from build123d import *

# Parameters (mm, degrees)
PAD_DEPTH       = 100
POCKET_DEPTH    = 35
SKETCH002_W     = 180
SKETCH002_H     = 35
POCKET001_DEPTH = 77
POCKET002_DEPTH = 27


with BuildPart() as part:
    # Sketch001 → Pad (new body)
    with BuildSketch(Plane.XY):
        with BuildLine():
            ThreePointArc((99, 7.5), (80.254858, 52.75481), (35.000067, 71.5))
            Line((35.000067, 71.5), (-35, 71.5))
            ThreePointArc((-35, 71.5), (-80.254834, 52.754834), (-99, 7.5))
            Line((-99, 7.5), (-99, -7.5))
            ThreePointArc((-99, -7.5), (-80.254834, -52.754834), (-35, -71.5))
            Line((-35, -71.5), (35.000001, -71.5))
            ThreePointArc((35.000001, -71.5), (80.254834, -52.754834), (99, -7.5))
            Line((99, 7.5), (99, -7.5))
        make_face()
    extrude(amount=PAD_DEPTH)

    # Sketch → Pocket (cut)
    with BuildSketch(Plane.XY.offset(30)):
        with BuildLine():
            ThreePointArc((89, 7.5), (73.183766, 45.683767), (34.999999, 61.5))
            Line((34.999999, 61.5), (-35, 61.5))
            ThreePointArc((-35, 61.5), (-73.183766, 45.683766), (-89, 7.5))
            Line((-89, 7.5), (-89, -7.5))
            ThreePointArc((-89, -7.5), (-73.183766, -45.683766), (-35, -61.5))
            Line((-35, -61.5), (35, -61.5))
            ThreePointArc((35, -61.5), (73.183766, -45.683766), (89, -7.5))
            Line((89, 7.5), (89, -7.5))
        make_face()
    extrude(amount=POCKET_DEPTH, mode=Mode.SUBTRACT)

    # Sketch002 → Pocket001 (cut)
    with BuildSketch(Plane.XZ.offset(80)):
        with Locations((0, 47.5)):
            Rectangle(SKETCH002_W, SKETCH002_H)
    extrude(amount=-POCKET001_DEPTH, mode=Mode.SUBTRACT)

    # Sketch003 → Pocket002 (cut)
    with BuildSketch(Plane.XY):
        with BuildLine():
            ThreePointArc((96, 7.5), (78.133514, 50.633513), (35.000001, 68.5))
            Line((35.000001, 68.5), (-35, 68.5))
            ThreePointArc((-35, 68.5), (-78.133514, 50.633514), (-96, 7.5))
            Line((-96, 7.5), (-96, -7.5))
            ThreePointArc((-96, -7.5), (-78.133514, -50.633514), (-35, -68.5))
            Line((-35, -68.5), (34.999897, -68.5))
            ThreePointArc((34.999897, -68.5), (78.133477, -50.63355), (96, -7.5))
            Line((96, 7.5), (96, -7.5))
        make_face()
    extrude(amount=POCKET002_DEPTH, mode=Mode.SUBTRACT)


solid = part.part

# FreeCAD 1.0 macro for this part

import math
import FreeCAD as App
import Part
import Sketcher
from FreeCAD import Vector


def add_polygon(sketch, points):
    """Adds a closed chain of lines whose ends are joined by coincident constraints."""
    first, n = sketch.GeometryCount, len(points)
    for a, b in zip(points, points[1:] + points[:1]):
        sketch.addGeometry(Part.LineSegment(App.Vector(*a, 0), App.Vector(*b, 0)), False)
    for i in range(n):
        sketch.addConstraint(Sketcher.Constraint("Coincident", first + i, 2, first + (i + 1) % n, 1))

doc = App.newDocument("Part")
body = doc.addObject("PartDesign::Body", "Body")

# Sketch on XY plane
sketch1 = body.newObject("Sketcher::SketchObject", "Sketch")
sketch1.AttachmentSupport = (doc.getObject("XY_Plane"), [""])
sketch1.MapMode = "FlatFace"
sketch1.addGeometry([
    Part.ArcOfCircle(Part.Circle(Vector(35, 7.5, 0), Vector(0, 0, 1), 64), math.radians(0), math.radians(89.99994)),  # 0
    Part.LineSegment(Vector(35.000067, 71.5, 0), Vector(-35, 71.5, 0)),  # 1
    Part.ArcOfCircle(Part.Circle(Vector(-35, 7.5, 0), Vector(0, 0, 1), 64), math.radians(90), math.radians(180)),  # 2
    Part.LineSegment(Vector(-99, 7.5, 0), Vector(-99, -7.5, 0)),  # 3
    Part.ArcOfCircle(Part.Circle(Vector(-35, -7.5, 0), Vector(0, 0, 1), 64), math.radians(180), math.radians(270)),  # 4
    Part.LineSegment(Vector(-35, -71.5, 0), Vector(35.000001, -71.5, 0)),  # 5
    Part.ArcOfCircle(Part.Circle(Vector(35, -7.5, 0), Vector(0, 0, 1), 64), math.radians(-89.999999), math.radians(0)),  # 6
    Part.LineSegment(Vector(99, -7.5, 0), Vector(99, 7.5, 0)),  # 7
], False)
sketch1.addConstraint([
    Sketcher.Constraint("Coincident", 0, 2, 1, 1),
    Sketcher.Constraint("Coincident", 1, 2, 2, 1),
    Sketcher.Constraint("Coincident", 2, 2, 3, 1),
    Sketcher.Constraint("Coincident", 3, 2, 4, 1),
    Sketcher.Constraint("Coincident", 4, 2, 5, 1),
    Sketcher.Constraint("Coincident", 5, 2, 6, 1),
    Sketcher.Constraint("Coincident", 6, 2, 7, 1),
    Sketcher.Constraint("Coincident", 7, 2, 0, 1),
    Sketcher.Constraint("Horizontal", 1),
    Sketcher.Constraint("Vertical", 3),
    Sketcher.Constraint("Horizontal", 5),
    Sketcher.Constraint("Vertical", 7),
    Sketcher.Constraint("Radius", 0, 64.0),
    Sketcher.Constraint("Radius", 2, 64.0),
    Sketcher.Constraint("Radius", 4, 64.0),
    Sketcher.Constraint("Radius", 6, 64.0),
    Sketcher.Constraint("DistanceX", 5, 1, 5, 2, 70.000001),
    Sketcher.Constraint("DistanceY", 3, 2, 3, 1, 15.0),
    Sketcher.Constraint("DistanceY", 7, 1, 7, 2, 15.0),
    Sketcher.Constraint("DistanceX", -1, 1, 0, 3, 35.0),
    Sketcher.Constraint("DistanceX", 2, 3, -1, 1, 35.0),
    Sketcher.Constraint("DistanceX", 1, 2, -1, 1, 35.0),
    Sketcher.Constraint("DistanceX", 4, 2, -1, 1, 35.0),
    Sketcher.Constraint("DistanceY", 4, 3, 2, 3, 15.0),
    Sketcher.Constraint("DistanceY", 4, 3, 2, 2, 15.0),
    Sketcher.Constraint("DistanceY", 6, 2, 0, 3, 15.0),
    Sketcher.Constraint("DistanceY", -1, 1, 0, 3, 7.5),
    Sketcher.Constraint("DistanceX", 1, 2, 1, 1, 70.000067),
])
pad1 = body.newObject("PartDesign::Pad", "Pad")
pad1.Profile = sketch1
pad1.Length = 100

# Sketch on XY plane
sketch2 = body.newObject("Sketcher::SketchObject", "Sketch001")
sketch2.AttachmentSupport = (doc.getObject("XY_Plane"), [""])
sketch2.MapMode = "FlatFace"
sketch2.AttachmentOffset = App.Placement(Vector(0, 0, 30), App.Rotation())
sketch2.addGeometry([
    Part.ArcOfCircle(Part.Circle(Vector(35, 8, 0), Vector(0, 0, 1), 54), math.radians(0), math.radians(90)),  # 0
    Part.LineSegment(Vector(35, 62, 0), Vector(-35, 62, 0)),  # 1
    Part.ArcOfCircle(Part.Circle(Vector(-35, 7, 0), Vector(0, 0, 1), 54), math.radians(90), math.radians(180)),  # 2
    Part.LineSegment(Vector(-89, 8, 0), Vector(-89, -8, 0)),  # 3
    Part.ArcOfCircle(Part.Circle(Vector(-35, -7, 0), Vector(0, 0, 1), 54), math.radians(-180), math.radians(-90)),  # 4
    Part.LineSegment(Vector(-35, -62, 0), Vector(35, -62, 0)),  # 5
    Part.ArcOfCircle(Part.Circle(Vector(35, -7, 0), Vector(0, 0, 1), 54), math.radians(-90), math.radians(0)),  # 6
    Part.LineSegment(Vector(89, -8, 0), Vector(89, 8, 0)),  # 7
], False)
sketch2.addConstraint([
    Sketcher.Constraint("Tangent", 0, 2, 1, 1),
    Sketcher.Constraint("Tangent", 1, 2, 2, 1),
    Sketcher.Constraint("Tangent", 2, 2, 3, 1),
    Sketcher.Constraint("Tangent", 3, 2, 4, 1),
    Sketcher.Constraint("Tangent", 4, 2, 5, 1),
    Sketcher.Constraint("Tangent", 5, 2, 6, 1),
    Sketcher.Constraint("Tangent", 6, 2, 7, 1),
    Sketcher.Constraint("Tangent", 7, 2, 0, 1),
    Sketcher.Constraint("Horizontal", 1),
    Sketcher.Constraint("Vertical", 3),
    Sketcher.Constraint("Horizontal", 5),
    Sketcher.Constraint("Vertical", 7),
    Sketcher.Constraint("Equal", 0, 2),
    Sketcher.Constraint("Equal", 2, 4),
    Sketcher.Constraint("Equal", 4, 6),
    Sketcher.Constraint("Symmetric", 0, 3, 4, 3, -1, 1),
    Sketcher.Constraint("Radius", 0, 53.999999),
    Sketcher.Constraint("DistanceX", 1, 2, 1, 1, 69.999999),
    Sketcher.Constraint("DistanceY", 3, 2, 3, 1, 15.0),
])
pocket1 = body.newObject("PartDesign::Pocket", "Pocket")
pocket1.Profile = sketch2
pocket1.Length = 35
pocket1.Reversed = True

# Sketch on XZ plane
sketch3 = body.newObject("Sketcher::SketchObject", "Sketch002")
sketch3.AttachmentSupport = (doc.getObject("XZ_Plane"), [""])
sketch3.MapMode = "FlatFace"
sketch3.AttachmentOffset = App.Placement(Vector(0, 0, 80), App.Rotation())
add_polygon(sketch3, [(-90, 65), (-90, 30), (90, 30), (90, 65)])  # lines 0-3
sketch3.addConstraint([
    Sketcher.Constraint("Vertical", 0),
    Sketcher.Constraint("Horizontal", 1),
    Sketcher.Constraint("Vertical", 2),
    Sketcher.Constraint("Horizontal", 3),
    Sketcher.Constraint("DistanceX", 1, 1, 1, 2, 180.0),
    Sketcher.Constraint("DistanceY", 0, 2, 0, 1, 35.0),
    Sketcher.Constraint("DistanceX", 0, 2, -1, 1, 90.0),
    Sketcher.Constraint("DistanceY", -1, 1, 0, 2, 30.0),
])
pocket2 = body.newObject("PartDesign::Pocket", "Pocket001")
pocket2.Profile = sketch3
pocket2.Length = 77

# Sketch on XY plane
sketch4 = body.newObject("Sketcher::SketchObject", "Sketch003")
sketch4.AttachmentSupport = (doc.getObject("XY_Plane"), [""])
sketch4.MapMode = "FlatFace"
sketch4.addGeometry([
    Part.ArcOfCircle(Part.Circle(Vector(34.999999, 7.499999, 0), Vector(0, 0, 1), 61.000001), math.radians(0), math.radians(89.999999)),  # 0
    Part.LineSegment(Vector(35.000001, 68.5, 0), Vector(-35, 68.5, 0)),  # 1
    Part.ArcOfCircle(Part.Circle(Vector(-35.000001, 7.500001, 0), Vector(0, 0, 1), 60.999999), math.radians(89.999999), math.radians(180.000001)),  # 2
    Part.LineSegment(Vector(-96, 7.5, 0), Vector(-96, -7.5, 0)),  # 3
    Part.ArcOfCircle(Part.Circle(Vector(-35.000001, -7.500001, 0), Vector(0, 0, 1), 60.999999), math.radians(179.999999), math.radians(270.000001)),  # 4
    Part.LineSegment(Vector(-35, -68.5, 0), Vector(34.999897, -68.5, 0)),  # 5
    Part.ArcOfCircle(Part.Circle(Vector(34.999999, -7.499999, 0), Vector(0, 0, 1), 61.000001), math.radians(-90.000096), math.radians(0)),  # 6
    Part.LineSegment(Vector(96, -7.5, 0), Vector(96, 7.5, 0)),  # 7
], False)
sketch4.addConstraint([
    Sketcher.Constraint("Coincident", 0, 2, 1, 1),
    Sketcher.Constraint("Coincident", 1, 2, 2, 1),
    Sketcher.Constraint("Coincident", 2, 2, 3, 1),
    Sketcher.Constraint("Coincident", 3, 2, 4, 1),
    Sketcher.Constraint("Coincident", 4, 2, 5, 1),
    Sketcher.Constraint("Coincident", 5, 2, 6, 1),
    Sketcher.Constraint("Coincident", 6, 2, 7, 1),
    Sketcher.Constraint("Coincident", 7, 2, 0, 1),
    Sketcher.Constraint("Horizontal", 1),
    Sketcher.Constraint("Vertical", 3),
    Sketcher.Constraint("Horizontal", 5),
    Sketcher.Constraint("Vertical", 7),
    Sketcher.Constraint("Radius", 0, 61.000001),
    Sketcher.Constraint("Radius", 2, 60.999999),
    Sketcher.Constraint("Radius", 4, 60.999999),
    Sketcher.Constraint("Radius", 6, 61.000001),
    Sketcher.Constraint("DistanceX", 1, 2, 1, 1, 70.000001),
    Sketcher.Constraint("DistanceY", 3, 2, 3, 1, 15.0),
    Sketcher.Constraint("DistanceY", 7, 1, 7, 2, 15.0),
    Sketcher.Constraint("DistanceX", -1, 1, 0, 3, 34.999999),
    Sketcher.Constraint("DistanceX", 2, 3, -1, 1, 35.000001),
    Sketcher.Constraint("DistanceX", -1, 1, 0, 2, 35.000001),
    Sketcher.Constraint("DistanceX", 4, 2, -1, 1, 35.0),
    Sketcher.Constraint("DistanceY", 4, 3, 0, 3, 15.000001),
    Sketcher.Constraint("DistanceY", 4, 3, 2, 2, 15.000001),
    Sketcher.Constraint("DistanceY", 6, 2, 0, 3, 14.999999),
    Sketcher.Constraint("DistanceY", -1, 1, 0, 3, 7.499999),
    Sketcher.Constraint("DistanceX", 4, 3, 5, 2, 69.999898),
])
pocket3 = body.newObject("PartDesign::Pocket", "Pocket002")
pocket3.Profile = sketch4
pocket3.Length = 27
pocket3.Reversed = True

doc.recompute()
